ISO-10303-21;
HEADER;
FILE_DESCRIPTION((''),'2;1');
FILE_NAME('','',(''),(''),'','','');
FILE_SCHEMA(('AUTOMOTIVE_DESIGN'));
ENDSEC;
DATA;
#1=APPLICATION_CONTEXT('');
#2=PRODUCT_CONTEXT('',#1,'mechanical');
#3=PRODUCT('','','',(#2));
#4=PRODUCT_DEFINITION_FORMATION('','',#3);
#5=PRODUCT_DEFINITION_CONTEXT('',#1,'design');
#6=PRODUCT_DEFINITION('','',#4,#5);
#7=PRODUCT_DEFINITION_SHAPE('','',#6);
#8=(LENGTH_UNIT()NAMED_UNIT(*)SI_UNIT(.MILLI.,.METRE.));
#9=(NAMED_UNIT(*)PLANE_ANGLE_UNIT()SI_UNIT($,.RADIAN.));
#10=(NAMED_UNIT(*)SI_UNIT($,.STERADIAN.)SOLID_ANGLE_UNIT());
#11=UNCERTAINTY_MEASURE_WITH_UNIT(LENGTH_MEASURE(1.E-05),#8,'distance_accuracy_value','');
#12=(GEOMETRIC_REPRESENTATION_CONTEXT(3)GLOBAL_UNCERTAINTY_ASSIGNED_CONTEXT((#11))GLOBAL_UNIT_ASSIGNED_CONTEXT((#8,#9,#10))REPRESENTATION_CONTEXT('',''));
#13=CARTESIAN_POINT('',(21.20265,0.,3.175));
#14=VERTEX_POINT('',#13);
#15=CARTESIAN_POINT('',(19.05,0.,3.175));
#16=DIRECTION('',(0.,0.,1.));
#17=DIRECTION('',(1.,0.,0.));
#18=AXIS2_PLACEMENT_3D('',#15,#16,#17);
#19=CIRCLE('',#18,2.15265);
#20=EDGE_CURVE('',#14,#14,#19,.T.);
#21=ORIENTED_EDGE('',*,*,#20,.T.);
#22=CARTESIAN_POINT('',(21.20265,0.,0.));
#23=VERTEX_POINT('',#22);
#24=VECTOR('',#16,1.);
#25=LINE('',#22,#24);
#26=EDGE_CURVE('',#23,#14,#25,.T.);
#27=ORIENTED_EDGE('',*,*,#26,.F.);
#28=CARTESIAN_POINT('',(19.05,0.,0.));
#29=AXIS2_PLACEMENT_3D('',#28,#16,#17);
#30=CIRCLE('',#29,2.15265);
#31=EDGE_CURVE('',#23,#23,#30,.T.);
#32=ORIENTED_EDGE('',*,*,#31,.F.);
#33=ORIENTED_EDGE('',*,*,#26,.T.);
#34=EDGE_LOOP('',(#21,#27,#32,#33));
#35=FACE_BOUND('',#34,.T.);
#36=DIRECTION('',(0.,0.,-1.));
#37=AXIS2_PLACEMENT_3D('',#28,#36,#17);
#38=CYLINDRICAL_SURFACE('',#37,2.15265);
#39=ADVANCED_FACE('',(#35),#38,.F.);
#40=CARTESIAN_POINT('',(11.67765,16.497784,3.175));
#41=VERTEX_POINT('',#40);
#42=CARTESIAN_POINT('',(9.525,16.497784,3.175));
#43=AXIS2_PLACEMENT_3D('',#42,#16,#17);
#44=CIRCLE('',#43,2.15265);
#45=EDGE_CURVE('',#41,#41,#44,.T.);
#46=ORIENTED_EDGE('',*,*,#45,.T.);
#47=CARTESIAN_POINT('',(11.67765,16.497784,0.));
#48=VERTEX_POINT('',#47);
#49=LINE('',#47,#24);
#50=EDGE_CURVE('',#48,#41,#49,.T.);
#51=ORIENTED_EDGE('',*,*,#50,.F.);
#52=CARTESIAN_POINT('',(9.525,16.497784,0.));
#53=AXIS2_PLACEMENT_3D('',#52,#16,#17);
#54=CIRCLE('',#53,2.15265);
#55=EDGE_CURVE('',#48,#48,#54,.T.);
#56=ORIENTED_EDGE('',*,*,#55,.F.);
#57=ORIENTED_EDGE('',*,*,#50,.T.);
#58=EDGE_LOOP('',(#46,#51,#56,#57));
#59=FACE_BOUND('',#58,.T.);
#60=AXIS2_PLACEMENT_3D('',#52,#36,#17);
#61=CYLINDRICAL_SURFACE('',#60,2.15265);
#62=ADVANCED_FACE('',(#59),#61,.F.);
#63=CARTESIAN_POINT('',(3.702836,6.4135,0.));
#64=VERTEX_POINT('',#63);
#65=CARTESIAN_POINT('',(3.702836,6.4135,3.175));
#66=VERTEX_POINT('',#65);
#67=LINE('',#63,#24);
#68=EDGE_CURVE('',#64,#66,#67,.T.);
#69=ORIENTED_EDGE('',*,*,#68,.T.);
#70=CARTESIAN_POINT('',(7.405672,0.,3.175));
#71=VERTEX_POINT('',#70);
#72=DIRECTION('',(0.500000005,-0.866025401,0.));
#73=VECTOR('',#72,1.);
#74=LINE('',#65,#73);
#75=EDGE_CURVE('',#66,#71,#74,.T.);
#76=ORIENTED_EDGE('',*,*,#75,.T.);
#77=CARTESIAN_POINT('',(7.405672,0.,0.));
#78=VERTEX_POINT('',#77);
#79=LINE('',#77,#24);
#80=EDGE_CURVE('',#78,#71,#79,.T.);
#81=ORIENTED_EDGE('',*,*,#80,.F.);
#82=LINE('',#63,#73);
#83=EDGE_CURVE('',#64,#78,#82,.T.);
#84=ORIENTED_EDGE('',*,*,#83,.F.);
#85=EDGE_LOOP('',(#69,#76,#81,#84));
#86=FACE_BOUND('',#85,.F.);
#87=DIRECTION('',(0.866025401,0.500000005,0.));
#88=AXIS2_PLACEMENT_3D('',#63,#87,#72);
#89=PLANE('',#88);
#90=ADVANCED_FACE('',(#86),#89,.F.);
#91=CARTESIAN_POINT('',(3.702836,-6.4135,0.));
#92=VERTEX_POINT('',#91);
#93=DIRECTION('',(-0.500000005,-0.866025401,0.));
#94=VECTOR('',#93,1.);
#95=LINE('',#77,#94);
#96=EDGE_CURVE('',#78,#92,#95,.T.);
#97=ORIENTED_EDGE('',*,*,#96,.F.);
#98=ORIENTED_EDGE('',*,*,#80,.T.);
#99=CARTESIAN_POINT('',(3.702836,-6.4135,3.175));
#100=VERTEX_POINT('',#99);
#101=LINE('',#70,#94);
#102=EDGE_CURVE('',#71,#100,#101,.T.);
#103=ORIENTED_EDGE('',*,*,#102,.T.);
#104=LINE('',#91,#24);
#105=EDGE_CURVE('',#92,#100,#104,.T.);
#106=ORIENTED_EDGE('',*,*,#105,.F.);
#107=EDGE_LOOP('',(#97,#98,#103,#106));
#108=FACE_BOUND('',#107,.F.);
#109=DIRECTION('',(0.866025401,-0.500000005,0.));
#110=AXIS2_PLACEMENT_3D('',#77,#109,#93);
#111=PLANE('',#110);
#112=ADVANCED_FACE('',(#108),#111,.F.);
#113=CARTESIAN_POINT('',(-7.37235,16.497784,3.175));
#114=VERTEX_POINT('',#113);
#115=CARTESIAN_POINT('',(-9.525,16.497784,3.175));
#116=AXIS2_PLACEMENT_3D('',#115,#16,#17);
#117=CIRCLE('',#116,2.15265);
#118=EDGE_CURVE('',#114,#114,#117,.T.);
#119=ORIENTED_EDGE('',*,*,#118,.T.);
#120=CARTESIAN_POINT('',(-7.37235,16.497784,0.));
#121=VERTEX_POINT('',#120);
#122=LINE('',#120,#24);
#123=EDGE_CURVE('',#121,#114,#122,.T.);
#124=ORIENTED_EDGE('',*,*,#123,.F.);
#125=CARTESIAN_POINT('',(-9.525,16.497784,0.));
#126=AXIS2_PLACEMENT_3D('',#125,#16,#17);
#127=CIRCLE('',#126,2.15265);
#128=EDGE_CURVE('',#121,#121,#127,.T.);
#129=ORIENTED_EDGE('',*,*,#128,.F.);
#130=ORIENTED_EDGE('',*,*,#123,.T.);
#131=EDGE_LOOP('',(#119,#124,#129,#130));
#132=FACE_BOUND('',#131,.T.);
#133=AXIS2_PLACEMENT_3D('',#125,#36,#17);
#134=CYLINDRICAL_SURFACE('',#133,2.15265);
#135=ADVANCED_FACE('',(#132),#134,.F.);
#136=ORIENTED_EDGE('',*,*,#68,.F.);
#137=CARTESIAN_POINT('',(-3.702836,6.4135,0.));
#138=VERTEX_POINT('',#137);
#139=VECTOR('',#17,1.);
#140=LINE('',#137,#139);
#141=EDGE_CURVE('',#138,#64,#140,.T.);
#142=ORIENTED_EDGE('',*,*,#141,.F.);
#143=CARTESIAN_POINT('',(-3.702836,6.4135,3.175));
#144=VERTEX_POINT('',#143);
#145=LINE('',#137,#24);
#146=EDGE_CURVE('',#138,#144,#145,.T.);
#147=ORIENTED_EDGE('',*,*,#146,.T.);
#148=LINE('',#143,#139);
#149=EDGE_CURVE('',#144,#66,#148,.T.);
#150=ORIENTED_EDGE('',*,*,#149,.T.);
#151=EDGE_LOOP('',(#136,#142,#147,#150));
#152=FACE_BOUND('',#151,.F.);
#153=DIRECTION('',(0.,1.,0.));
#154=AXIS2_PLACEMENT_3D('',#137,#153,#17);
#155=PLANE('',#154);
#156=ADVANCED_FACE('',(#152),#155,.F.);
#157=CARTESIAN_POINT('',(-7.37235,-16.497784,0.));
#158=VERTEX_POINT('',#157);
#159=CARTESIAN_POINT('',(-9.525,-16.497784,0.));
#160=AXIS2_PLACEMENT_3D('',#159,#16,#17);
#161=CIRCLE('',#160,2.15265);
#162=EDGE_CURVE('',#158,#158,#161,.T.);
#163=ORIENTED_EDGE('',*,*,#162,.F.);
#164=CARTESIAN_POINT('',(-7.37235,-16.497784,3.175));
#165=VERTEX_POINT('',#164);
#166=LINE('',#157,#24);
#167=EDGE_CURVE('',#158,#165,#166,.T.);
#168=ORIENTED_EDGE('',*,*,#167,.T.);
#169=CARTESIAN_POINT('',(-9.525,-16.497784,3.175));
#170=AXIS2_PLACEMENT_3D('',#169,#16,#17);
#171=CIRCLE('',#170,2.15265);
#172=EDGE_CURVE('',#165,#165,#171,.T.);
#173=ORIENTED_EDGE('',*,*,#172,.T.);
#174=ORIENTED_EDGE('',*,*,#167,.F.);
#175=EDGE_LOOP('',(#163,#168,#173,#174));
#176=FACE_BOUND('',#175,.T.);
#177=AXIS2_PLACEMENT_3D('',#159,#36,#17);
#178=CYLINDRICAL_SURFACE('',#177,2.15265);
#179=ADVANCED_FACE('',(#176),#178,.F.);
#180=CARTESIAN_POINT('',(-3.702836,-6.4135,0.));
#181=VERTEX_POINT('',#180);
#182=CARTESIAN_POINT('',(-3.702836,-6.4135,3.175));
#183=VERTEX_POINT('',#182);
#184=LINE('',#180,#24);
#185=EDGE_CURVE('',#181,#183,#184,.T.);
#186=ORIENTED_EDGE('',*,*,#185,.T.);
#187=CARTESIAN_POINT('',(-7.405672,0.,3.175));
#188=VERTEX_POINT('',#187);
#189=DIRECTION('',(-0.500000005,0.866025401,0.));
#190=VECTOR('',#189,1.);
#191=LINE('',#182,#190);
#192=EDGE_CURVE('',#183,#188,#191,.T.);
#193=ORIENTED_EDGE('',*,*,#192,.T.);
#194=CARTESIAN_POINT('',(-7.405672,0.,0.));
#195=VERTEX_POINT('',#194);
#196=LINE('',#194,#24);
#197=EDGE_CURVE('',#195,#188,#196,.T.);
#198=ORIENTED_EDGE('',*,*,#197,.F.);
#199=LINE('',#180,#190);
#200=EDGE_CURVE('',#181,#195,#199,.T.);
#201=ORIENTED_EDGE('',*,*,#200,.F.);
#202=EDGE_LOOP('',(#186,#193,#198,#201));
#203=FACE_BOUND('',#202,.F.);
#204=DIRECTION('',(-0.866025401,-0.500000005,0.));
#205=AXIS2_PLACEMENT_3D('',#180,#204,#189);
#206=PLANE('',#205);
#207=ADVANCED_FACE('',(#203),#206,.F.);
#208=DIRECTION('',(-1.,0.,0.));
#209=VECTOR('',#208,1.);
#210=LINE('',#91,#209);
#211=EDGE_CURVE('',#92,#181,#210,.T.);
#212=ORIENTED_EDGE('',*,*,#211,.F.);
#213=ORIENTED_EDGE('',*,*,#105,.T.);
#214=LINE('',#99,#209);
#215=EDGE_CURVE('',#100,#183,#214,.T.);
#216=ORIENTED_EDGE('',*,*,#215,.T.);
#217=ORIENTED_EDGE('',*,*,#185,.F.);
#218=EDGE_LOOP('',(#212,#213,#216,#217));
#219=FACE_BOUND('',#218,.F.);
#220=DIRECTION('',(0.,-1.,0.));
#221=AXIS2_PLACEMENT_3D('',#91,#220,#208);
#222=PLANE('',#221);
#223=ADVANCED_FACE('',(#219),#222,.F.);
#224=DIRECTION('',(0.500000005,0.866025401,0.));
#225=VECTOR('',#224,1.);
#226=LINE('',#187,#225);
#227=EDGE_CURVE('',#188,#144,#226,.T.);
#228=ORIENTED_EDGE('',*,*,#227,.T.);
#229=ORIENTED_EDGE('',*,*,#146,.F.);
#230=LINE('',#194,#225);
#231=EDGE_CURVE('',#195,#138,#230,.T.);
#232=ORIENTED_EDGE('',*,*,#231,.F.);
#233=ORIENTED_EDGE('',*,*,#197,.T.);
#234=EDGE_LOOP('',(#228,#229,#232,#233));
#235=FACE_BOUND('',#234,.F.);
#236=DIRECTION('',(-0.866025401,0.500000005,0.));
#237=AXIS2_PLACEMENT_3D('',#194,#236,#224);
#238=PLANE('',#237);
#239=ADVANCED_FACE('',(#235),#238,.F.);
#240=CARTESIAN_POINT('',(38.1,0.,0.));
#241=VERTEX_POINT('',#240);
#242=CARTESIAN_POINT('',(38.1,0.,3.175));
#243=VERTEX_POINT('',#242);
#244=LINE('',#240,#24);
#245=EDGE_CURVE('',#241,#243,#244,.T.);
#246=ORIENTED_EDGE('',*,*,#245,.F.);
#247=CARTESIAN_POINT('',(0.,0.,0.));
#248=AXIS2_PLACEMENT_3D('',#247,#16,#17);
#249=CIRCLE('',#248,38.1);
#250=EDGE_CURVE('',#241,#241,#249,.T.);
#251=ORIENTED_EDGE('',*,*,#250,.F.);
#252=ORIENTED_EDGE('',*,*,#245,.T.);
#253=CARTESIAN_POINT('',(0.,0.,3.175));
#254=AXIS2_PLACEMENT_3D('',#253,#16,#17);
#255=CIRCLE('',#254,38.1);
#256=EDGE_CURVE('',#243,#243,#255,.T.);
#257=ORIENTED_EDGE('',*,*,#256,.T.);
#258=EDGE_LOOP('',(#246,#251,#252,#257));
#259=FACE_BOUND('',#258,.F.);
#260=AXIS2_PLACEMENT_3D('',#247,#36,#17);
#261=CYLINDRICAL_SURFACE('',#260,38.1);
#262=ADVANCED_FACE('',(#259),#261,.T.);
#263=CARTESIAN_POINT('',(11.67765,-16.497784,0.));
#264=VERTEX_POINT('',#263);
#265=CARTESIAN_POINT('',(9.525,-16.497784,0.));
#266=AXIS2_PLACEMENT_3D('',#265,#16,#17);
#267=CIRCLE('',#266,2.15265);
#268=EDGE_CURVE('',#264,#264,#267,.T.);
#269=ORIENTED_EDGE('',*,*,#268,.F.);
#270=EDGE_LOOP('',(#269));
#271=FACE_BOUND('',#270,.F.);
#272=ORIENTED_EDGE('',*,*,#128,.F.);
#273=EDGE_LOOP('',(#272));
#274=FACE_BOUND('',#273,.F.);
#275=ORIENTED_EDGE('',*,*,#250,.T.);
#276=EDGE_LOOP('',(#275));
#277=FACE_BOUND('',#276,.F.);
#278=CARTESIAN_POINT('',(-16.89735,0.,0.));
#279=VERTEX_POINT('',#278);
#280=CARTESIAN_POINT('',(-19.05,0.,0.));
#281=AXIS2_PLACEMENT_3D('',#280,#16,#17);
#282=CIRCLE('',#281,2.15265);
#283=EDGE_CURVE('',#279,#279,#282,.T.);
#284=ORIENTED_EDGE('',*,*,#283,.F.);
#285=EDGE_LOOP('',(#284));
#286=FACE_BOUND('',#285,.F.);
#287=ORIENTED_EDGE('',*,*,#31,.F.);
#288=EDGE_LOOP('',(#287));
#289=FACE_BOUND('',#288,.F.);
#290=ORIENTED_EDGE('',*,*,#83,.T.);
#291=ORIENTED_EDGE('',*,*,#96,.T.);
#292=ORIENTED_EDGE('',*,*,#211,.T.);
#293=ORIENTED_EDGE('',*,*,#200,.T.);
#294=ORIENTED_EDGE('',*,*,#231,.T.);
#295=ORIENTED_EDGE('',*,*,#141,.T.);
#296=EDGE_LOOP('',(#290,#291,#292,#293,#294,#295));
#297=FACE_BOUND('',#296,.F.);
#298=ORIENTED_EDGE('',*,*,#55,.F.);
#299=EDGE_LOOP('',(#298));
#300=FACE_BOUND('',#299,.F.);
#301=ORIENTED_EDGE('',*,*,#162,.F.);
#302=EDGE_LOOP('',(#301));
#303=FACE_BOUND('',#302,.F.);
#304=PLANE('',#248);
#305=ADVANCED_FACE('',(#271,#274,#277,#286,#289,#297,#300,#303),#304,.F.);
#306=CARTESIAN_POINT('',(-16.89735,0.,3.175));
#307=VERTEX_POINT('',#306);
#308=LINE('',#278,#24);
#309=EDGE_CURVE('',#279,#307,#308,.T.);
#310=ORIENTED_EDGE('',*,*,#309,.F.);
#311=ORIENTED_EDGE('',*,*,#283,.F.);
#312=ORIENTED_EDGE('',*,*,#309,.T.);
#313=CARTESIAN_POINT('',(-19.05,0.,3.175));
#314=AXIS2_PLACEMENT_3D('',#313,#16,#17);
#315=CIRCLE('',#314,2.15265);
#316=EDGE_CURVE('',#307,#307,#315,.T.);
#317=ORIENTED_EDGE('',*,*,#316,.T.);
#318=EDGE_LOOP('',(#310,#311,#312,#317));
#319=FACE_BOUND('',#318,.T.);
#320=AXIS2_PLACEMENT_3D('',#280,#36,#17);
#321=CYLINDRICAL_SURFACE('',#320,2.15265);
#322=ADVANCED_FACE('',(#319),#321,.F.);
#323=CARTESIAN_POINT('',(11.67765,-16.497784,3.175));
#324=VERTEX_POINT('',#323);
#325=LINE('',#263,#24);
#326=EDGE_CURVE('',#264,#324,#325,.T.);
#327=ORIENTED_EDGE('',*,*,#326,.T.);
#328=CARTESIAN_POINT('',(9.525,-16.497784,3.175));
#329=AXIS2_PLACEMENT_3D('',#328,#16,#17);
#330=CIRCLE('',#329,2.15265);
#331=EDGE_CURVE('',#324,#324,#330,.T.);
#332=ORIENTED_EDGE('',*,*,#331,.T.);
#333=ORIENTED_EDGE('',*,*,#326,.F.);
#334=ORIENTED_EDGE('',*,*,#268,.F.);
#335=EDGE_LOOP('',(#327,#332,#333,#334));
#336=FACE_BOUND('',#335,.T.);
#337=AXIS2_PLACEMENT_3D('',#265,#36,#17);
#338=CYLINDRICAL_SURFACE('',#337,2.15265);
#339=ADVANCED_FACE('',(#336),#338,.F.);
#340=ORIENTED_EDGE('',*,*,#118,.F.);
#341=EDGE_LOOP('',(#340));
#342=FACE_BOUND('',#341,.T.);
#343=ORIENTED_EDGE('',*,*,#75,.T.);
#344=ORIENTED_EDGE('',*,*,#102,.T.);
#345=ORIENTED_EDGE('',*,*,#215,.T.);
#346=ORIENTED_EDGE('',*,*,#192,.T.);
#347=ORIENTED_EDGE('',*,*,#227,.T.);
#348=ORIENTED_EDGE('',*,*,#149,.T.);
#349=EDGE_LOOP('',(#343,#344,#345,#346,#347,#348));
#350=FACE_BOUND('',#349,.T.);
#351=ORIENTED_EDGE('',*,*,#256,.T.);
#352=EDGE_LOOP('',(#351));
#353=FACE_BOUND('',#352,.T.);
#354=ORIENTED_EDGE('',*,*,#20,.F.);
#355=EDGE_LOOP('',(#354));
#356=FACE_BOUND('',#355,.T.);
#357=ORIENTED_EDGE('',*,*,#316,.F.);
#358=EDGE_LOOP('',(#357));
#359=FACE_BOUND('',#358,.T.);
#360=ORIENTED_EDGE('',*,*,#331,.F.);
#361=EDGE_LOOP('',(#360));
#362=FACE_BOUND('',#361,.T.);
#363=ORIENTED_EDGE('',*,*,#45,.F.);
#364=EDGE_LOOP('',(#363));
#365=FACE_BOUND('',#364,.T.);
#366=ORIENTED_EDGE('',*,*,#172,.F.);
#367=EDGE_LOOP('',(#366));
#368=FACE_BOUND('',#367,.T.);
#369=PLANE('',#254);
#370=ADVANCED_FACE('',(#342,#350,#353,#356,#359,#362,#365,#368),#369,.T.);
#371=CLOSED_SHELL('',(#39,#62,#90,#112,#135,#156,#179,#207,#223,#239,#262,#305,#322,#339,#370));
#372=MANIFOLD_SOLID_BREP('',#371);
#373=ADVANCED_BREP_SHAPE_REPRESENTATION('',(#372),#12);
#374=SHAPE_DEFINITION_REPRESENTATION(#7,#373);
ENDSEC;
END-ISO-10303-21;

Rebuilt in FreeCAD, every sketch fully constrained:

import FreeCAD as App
import Part
import Sketcher
from FreeCAD import Vector
Q = App.Units.Quantity

doc = App.newDocument("Part")
body = doc.addObject("PartDesign::Body", "Body")

sketch1 = doc.addObject("Sketcher::SketchObject", "Sketch")
body.addObject(sketch1)
sketch1.AttachmentSupport = (doc.XY_Plane, [""])
sketch1.MapMode = "FlatFace"
sketch1.addGeometry([
    Part.Circle(Vector(0, 0, 0), Vector(0, 0, 1), 38.1),
    Part.Circle(Vector(-9.5, -16.5, 0), Vector(0, 0, 1), 2.2),
    Part.Circle(Vector(9.5, -16.5, 0), Vector(0, 0, 1), 2.2),
    Part.Circle(Vector(-19.1, 0, 0), Vector(0, 0, 1), 2.2),
    Part.Circle(Vector(-9.5, 16.5, 0), Vector(0, 0, 1), 2.2),
    Part.LineSegment(Vector(3.7, 6.4, 0), Vector(7.4, 0, 0)),
    Part.LineSegment(Vector(7.4, 0, 0), Vector(3.7, -6.4, 0)),
    Part.LineSegment(Vector(3.7, -6.4, 0), Vector(-3.7, -6.4, 0)),
    Part.LineSegment(Vector(-3.7, -6.4, 0), Vector(-7.4, 0, 0)),
    Part.LineSegment(Vector(-7.4, 0, 0), Vector(-3.7, 6.4, 0)),
    Part.LineSegment(Vector(-3.7, 6.4, 0), Vector(3.7, 6.4, 0)),
    Part.Circle(Vector(19.1, 0, 0), Vector(0, 0, 1), 2.2),
    Part.Circle(Vector(9.5, 16.5, 0), Vector(0, 0, 1), 2.2),
], False)
sketch1.addConstraint([
    Sketcher.Constraint("Coincident", 5, 2, 6, 1),
    Sketcher.Constraint("Coincident", 6, 2, 7, 1),
    Sketcher.Constraint("Coincident", 7, 2, 8, 1),
    Sketcher.Constraint("Coincident", 8, 2, 9, 1),
    Sketcher.Constraint("Coincident", 9, 2, 10, 1),
    Sketcher.Constraint("Coincident", 10, 2, 5, 1),
    Sketcher.Constraint("Horizontal", 7),
    Sketcher.Constraint("Horizontal", 10),
    Sketcher.Constraint("Coincident", 0, 3, -1, 1),
    Sketcher.Constraint("Equal", 1, 2),
    Sketcher.Constraint("Equal", 2, 3),
    Sketcher.Constraint("Equal", 3, 4),
    Sketcher.Constraint("Equal", 4, 11),
    Sketcher.Constraint("Equal", 11, 12),
    Sketcher.Constraint("Symmetric", 2, 3, 4, 3, -1, 1),
    Sketcher.Constraint("Symmetric", 3, 3, 11, 3, -1, 1),
    Sketcher.Constraint("Symmetric", 1, 3, 12, 3, -1, 1),
    Sketcher.Constraint("Symmetric", 5, 2, 8, 2, -1, 1),
    Sketcher.Constraint("Symmetric", 6, 2, 9, 2, -1, 1),
    Sketcher.Constraint("Symmetric", 1, 3, 2, 3, -2),
    Sketcher.Constraint("PointOnObject", 3, 3, -1),
    Sketcher.Constraint("PointOnObject", 5, 2, -1),
    Sketcher.Constraint("Parallel", 5, 8),
    Sketcher.Constraint("Vertical", 7, 2, 9, 2),
    Sketcher.Constraint("Diameter", 0, Q("3 in")),
    Sketcher.Constraint("Angle", 5, Q("-60 deg")),
    Sketcher.Constraint("Diameter", 1, Q("0.1695 in")),
    Sketcher.Constraint("DistanceX", 3, 3, 11, 3, Q("1.5 in")),
    Sketcher.Constraint("DistanceX", 1, 3, 2, 3, Q("0.75 in")),
    Sketcher.Constraint("DistanceY", 7, 2, 9, 2, Q("0.505 in")),
    Sketcher.Constraint("DistanceX", 7, 2, 7, 1, 7.405672),
    Sketcher.Constraint("DistanceY", 1, 3, -1, 1, 16.497784),
])
pad1 = doc.addObject("PartDesign::Pad", "Pad")
body.addObject(pad1)
pad1.Profile = sketch1
pad1.Length = Q("0.125 in")

doc.recompute()
